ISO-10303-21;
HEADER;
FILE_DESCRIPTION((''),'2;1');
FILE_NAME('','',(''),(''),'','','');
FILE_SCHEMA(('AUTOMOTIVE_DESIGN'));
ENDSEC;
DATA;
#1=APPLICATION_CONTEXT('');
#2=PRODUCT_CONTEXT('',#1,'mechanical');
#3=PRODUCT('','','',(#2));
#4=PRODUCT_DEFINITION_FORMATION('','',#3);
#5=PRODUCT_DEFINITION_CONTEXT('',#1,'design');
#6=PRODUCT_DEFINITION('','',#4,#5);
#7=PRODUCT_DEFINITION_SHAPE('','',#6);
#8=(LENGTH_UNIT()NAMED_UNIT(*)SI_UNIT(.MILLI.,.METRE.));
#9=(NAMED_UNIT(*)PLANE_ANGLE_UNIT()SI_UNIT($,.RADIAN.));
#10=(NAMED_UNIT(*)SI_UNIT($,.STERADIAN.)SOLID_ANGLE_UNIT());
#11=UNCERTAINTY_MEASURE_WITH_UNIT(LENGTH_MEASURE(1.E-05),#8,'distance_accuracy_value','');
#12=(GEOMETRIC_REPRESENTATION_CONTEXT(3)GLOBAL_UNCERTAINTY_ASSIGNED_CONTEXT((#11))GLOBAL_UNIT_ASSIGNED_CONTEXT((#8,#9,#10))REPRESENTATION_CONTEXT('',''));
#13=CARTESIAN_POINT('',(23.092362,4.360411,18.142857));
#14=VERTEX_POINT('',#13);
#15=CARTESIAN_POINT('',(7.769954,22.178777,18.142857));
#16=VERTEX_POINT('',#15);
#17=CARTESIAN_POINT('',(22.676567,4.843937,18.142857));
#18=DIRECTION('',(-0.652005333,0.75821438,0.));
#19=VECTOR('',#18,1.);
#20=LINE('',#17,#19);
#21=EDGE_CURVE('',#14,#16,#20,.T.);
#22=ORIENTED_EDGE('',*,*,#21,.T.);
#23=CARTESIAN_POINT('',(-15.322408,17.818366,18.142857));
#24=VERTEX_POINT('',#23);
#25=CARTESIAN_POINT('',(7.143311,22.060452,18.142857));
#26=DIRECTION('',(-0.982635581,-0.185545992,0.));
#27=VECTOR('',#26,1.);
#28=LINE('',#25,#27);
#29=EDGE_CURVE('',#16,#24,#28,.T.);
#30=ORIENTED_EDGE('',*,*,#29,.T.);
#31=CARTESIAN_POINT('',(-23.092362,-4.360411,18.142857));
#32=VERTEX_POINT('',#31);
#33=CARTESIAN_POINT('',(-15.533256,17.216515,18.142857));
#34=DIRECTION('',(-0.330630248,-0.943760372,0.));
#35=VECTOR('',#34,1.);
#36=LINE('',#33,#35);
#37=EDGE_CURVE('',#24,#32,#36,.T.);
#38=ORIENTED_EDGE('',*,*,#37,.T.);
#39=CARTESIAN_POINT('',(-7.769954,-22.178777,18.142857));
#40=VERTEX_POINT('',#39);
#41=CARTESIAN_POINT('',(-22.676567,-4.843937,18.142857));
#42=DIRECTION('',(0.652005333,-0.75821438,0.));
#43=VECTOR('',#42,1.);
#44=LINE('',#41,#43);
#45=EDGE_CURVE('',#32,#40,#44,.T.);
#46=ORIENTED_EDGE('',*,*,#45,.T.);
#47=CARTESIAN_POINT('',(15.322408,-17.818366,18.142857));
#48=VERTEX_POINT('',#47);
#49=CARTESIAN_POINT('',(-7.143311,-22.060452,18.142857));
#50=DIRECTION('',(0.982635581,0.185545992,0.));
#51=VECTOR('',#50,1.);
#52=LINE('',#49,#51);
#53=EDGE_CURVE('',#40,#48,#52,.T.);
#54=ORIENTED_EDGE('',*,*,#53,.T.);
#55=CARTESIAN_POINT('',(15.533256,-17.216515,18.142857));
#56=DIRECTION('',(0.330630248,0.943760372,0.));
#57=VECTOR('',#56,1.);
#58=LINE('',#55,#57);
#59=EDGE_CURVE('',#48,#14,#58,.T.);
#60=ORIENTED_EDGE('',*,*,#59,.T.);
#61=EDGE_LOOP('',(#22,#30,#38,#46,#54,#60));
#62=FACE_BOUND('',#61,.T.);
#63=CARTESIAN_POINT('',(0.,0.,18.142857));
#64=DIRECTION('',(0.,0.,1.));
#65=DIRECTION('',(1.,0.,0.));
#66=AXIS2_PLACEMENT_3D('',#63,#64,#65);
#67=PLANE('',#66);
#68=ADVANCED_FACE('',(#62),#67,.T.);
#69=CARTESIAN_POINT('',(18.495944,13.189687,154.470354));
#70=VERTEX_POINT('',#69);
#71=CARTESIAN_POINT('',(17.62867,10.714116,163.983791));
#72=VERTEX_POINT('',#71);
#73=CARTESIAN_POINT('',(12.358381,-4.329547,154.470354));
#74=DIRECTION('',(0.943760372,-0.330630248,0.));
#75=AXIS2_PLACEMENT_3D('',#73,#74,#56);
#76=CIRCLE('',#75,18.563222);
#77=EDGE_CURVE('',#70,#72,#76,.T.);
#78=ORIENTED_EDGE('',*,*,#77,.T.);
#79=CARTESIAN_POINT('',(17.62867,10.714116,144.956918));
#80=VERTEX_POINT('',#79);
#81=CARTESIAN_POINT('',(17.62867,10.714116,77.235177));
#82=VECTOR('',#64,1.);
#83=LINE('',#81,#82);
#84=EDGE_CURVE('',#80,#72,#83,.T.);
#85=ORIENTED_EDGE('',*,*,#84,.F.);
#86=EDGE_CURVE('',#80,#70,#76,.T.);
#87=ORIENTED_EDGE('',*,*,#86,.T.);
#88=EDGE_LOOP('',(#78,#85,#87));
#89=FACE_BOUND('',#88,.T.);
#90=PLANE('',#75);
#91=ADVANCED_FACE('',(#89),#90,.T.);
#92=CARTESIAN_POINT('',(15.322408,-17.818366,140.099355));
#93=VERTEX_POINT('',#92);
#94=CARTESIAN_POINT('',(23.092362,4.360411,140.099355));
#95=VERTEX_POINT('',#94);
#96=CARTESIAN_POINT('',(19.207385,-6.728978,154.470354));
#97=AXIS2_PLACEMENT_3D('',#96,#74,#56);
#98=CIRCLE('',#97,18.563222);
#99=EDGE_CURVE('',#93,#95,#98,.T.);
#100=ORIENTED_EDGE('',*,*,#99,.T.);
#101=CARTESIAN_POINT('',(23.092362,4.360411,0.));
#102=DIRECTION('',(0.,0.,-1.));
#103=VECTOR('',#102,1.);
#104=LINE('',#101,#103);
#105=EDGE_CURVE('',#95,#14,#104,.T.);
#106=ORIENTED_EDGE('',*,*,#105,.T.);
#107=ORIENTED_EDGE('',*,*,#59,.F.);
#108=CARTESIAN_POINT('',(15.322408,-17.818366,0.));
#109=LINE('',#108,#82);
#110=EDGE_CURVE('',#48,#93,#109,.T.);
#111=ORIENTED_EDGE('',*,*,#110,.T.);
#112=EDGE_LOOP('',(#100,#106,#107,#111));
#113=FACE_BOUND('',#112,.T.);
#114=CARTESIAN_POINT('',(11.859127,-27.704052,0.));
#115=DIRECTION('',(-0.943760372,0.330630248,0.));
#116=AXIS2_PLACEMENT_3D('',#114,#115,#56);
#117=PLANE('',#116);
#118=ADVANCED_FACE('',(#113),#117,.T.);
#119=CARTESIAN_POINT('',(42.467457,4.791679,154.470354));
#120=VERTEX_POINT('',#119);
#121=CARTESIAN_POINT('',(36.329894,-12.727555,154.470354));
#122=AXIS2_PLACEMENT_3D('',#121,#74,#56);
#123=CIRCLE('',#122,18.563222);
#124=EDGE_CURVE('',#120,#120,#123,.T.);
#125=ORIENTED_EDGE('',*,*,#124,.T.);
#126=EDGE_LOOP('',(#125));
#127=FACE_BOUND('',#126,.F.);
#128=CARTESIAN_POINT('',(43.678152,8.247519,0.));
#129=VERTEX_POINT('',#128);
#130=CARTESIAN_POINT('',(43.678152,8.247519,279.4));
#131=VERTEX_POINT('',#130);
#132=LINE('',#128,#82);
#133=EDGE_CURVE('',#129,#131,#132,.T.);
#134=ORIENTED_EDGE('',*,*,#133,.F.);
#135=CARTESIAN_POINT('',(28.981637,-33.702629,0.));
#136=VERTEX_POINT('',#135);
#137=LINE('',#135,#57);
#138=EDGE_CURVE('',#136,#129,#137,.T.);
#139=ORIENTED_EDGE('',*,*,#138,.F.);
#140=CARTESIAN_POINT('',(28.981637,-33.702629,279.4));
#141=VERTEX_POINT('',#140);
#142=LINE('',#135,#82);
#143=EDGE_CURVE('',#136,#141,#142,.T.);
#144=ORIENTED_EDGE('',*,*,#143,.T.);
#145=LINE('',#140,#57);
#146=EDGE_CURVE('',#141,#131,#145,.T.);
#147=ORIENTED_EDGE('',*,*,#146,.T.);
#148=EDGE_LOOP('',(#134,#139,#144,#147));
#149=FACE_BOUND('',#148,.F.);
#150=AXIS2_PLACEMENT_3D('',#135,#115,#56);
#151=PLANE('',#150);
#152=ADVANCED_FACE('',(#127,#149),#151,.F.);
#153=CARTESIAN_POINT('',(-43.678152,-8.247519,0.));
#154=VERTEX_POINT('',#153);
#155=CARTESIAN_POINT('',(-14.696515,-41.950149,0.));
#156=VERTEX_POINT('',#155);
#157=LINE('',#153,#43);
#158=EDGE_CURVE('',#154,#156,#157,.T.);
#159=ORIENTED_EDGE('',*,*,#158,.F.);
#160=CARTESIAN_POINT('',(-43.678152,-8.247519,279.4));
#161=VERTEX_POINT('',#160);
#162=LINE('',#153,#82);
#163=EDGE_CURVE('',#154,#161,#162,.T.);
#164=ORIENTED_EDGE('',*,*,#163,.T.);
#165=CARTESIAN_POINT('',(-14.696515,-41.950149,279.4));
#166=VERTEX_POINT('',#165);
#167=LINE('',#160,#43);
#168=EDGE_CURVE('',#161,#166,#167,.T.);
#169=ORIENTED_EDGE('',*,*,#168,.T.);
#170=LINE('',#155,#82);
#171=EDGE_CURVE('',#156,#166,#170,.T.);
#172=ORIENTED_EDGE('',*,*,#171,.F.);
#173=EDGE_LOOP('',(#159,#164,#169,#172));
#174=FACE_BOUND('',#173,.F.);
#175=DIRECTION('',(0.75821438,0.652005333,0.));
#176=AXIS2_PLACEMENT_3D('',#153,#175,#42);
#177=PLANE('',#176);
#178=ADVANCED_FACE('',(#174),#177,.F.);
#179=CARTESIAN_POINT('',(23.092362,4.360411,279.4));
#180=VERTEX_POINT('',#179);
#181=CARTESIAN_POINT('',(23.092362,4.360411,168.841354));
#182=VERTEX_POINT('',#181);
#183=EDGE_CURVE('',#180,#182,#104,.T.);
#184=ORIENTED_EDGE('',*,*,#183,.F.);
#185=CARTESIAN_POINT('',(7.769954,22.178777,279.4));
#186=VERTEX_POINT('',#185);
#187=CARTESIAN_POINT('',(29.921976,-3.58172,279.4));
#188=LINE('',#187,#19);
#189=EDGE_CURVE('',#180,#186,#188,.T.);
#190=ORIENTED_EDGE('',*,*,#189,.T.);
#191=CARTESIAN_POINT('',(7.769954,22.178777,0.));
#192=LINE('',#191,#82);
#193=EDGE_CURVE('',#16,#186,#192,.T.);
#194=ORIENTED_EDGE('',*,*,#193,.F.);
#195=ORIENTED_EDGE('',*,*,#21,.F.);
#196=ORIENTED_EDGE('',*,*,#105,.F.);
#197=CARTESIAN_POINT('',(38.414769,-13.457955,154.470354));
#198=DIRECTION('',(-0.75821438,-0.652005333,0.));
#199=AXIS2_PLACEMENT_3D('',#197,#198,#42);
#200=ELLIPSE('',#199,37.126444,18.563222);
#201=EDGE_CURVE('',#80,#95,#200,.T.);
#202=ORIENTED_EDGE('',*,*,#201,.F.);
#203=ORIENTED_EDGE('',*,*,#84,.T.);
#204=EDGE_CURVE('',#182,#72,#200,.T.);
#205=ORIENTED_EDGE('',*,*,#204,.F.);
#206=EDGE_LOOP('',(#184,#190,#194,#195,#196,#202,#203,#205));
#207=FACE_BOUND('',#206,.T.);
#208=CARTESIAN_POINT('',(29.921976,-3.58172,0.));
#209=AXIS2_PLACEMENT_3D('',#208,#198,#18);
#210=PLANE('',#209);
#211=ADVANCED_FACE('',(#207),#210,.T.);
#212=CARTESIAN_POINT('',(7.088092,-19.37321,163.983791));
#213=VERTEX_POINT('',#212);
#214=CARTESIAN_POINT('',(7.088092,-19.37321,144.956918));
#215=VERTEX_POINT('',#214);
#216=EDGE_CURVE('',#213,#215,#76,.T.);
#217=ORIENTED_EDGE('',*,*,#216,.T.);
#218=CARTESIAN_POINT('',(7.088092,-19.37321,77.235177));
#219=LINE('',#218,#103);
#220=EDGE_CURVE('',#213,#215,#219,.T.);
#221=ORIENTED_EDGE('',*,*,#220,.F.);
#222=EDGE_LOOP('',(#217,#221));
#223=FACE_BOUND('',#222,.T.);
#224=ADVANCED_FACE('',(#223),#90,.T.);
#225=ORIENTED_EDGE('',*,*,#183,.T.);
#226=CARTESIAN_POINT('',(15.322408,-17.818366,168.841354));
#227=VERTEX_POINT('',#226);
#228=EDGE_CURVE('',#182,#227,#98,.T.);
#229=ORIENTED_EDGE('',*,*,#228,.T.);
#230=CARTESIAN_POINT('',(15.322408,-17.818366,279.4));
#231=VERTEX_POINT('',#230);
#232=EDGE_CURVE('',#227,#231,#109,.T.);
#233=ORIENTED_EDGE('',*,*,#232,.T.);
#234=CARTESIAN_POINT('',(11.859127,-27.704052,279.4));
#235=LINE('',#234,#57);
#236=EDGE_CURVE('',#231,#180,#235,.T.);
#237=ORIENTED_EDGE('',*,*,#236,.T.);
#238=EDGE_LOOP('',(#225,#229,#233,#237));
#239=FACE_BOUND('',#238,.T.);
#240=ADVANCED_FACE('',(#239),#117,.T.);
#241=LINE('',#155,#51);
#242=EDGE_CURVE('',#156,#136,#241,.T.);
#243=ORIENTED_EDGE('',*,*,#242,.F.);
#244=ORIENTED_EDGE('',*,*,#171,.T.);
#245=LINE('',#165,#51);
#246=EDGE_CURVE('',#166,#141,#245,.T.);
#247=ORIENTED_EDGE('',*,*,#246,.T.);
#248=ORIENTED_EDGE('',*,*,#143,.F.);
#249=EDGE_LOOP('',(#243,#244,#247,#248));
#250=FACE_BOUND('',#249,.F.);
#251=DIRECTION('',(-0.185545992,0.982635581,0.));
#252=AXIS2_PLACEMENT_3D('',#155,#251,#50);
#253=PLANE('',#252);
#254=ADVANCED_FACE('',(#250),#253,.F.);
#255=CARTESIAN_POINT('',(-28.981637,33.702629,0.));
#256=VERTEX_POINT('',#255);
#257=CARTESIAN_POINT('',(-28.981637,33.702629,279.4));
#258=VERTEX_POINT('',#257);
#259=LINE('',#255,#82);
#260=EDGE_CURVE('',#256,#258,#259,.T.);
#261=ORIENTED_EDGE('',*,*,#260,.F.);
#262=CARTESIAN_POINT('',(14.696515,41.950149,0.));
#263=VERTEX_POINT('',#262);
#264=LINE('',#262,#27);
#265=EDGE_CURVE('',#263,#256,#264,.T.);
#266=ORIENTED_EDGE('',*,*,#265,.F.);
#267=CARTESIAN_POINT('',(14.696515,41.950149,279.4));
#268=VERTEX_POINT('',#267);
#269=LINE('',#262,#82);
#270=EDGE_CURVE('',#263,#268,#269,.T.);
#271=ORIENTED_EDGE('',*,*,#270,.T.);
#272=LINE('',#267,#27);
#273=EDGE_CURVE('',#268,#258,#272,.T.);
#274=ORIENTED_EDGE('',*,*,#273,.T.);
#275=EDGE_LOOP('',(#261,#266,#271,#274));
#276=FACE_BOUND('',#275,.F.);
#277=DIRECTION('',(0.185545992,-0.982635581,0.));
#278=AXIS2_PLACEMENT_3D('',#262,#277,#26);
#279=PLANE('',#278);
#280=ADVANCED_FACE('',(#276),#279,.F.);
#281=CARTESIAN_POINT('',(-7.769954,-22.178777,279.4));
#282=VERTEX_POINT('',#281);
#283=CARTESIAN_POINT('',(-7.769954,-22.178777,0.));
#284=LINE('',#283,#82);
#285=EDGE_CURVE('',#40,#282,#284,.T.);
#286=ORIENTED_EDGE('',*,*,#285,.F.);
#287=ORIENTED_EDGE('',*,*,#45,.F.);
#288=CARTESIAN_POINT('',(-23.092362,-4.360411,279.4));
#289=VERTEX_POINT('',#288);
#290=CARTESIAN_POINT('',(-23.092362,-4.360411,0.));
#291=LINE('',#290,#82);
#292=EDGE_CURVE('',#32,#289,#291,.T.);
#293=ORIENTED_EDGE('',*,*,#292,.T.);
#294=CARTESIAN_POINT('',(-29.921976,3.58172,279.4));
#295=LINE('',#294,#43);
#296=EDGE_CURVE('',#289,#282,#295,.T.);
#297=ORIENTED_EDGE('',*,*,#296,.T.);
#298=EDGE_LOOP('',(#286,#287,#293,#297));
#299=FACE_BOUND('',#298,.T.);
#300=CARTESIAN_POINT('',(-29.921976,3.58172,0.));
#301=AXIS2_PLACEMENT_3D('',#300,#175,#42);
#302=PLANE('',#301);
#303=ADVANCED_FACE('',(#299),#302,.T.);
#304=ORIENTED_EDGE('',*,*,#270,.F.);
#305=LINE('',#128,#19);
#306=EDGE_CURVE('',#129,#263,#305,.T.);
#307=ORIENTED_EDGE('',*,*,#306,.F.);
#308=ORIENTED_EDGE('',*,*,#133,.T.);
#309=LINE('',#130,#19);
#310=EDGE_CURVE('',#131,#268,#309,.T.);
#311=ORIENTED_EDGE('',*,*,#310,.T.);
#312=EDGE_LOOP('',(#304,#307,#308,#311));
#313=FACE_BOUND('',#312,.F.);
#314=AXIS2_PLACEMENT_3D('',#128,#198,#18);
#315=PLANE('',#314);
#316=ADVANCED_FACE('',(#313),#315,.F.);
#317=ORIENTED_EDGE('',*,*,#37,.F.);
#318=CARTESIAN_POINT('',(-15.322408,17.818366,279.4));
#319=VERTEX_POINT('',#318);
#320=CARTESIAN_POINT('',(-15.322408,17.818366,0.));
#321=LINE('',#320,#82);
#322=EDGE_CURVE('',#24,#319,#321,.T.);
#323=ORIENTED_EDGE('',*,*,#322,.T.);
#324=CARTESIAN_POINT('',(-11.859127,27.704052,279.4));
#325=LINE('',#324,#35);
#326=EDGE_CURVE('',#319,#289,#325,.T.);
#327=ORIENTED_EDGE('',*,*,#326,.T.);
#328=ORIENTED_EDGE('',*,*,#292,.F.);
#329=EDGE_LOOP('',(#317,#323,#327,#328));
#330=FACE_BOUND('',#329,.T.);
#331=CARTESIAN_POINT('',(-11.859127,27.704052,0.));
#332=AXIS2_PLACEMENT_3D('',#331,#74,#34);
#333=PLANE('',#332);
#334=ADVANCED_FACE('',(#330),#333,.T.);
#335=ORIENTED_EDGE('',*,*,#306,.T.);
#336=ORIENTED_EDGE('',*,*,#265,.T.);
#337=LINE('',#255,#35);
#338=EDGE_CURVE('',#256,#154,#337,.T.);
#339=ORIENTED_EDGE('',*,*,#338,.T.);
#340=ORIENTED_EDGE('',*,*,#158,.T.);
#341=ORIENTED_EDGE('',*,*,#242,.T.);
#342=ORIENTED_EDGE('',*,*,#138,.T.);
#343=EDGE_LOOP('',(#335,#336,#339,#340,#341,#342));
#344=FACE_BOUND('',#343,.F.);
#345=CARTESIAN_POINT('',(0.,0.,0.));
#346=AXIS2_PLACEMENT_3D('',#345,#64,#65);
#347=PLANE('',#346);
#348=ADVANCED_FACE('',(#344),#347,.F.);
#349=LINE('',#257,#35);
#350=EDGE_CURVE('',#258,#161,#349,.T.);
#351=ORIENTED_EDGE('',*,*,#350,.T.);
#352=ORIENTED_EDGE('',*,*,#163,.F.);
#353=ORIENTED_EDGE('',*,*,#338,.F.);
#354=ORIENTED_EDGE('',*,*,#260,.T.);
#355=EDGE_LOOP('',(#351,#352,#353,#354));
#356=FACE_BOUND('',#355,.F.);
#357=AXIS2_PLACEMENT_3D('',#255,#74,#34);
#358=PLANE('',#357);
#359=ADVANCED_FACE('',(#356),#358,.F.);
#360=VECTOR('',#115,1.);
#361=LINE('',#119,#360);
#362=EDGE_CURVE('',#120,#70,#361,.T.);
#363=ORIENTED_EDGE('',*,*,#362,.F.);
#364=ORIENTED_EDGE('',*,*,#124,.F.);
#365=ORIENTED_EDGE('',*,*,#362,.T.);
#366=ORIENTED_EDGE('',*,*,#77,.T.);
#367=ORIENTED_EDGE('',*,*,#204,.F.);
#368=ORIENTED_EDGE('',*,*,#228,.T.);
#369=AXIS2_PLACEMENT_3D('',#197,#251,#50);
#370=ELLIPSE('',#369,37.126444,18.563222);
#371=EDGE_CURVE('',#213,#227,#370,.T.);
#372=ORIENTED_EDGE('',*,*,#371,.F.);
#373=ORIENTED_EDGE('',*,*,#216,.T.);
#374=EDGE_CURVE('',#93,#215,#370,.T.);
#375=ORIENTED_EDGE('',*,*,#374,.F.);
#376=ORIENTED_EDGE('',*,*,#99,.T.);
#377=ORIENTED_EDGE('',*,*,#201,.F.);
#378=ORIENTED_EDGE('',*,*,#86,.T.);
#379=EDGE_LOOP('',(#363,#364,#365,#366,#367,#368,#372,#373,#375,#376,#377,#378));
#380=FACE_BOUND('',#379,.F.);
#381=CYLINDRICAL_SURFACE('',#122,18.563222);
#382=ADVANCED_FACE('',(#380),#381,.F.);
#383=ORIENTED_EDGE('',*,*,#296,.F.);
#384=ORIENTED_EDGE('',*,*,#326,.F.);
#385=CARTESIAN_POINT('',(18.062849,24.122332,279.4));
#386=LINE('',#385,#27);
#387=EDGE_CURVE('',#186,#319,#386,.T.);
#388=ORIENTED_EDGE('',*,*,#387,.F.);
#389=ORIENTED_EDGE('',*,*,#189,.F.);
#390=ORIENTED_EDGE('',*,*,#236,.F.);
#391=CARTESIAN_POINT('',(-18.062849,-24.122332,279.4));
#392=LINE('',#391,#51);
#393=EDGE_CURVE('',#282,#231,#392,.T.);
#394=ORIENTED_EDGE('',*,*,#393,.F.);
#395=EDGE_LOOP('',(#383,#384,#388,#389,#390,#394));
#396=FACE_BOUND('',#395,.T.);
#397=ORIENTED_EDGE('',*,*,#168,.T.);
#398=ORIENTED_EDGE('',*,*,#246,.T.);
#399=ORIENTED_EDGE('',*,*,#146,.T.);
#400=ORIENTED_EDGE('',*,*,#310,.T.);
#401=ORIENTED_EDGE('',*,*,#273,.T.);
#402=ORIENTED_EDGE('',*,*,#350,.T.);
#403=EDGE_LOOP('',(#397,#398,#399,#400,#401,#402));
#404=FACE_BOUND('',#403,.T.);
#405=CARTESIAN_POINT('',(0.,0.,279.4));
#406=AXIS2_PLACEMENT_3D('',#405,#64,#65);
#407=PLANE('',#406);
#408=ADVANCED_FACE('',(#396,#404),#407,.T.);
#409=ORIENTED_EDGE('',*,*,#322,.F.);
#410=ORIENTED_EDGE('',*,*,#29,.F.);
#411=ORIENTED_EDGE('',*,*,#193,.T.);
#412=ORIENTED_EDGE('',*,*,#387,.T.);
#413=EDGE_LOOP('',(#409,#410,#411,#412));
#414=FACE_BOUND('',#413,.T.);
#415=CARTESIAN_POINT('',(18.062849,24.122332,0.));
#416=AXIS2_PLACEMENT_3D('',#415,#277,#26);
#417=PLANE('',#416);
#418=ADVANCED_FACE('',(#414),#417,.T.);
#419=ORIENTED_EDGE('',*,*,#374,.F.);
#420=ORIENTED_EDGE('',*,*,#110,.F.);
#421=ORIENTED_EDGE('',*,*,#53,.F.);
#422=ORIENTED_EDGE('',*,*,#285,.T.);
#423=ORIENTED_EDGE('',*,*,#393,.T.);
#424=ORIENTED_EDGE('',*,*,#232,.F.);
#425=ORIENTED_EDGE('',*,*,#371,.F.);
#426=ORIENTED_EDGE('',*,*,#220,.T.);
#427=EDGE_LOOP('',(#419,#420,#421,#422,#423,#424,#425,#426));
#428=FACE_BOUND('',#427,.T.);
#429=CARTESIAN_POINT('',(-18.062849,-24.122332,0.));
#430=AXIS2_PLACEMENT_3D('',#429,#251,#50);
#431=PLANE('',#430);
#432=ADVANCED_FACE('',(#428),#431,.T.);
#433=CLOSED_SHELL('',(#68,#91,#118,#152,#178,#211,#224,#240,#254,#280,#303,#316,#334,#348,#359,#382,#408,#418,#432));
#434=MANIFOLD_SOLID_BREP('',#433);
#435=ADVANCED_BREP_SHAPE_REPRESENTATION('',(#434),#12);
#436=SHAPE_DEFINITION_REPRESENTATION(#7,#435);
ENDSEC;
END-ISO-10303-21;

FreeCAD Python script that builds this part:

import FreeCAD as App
import Part
import Sketcher

V = App.Vector
Q = App.Units.Quantity


def faces_at(feature, points):
    """Names of the faces that lie closest to the given points."""
    faces = feature.Shape.Faces
    near = lambda p: min(range(len(faces)), key=lambda i: faces[i].distToShape(Part.Vertex(*p))[0])
    return sorted({f"Face{near(p) + 1}" for p in points})

doc = App.newDocument("Part")
params = doc.addObject("Spreadsheet::Sheet", "Params")
for row, (alias, value) in enumerate([
    ("sketch1_length", "1.75 in"),
    ("pad1_length", "11 in"),
    ("thickness_wall", "18.142857 mm"),
    ("pocket1_length", "1 in"),
], start=1):
    params.set(f"A{row}", alias)
    params.set(f"B{row}", "=" + value)
    params.setAlias(f"B{row}", alias)

body = doc.addObject("PartDesign::Body", "Body")

sketch1 = body.newObject("Sketcher::SketchObject", "Sketch")
sketch1.AttachmentSupport = (doc.getObject("XY_Plane"), [""])
sketch1.MapMode = "FlatFace"
sketch1.addGeometry([
    Part.LineSegment(V(43.678152, 8.247519, 0), V(14.696515, 41.950149, 0)),
    Part.LineSegment(V(14.696515, 41.950149, 0), V(-28.981637, 33.702629, 0)),
    Part.LineSegment(V(-28.981637, 33.702629, 0), V(-43.678152, -8.247519, 0)),
    Part.LineSegment(V(-43.678152, -8.247519, 0), V(-14.696515, -41.950149, 0)),
    Part.LineSegment(V(-14.696515, -41.950149, 0), V(28.981637, -33.702629, 0)),
    Part.LineSegment(V(28.981637, -33.702629, 0), V(43.678152, 8.247519, 0)),
], False)
sketch1.addConstraint([
    Sketcher.Constraint("Coincident", 0, 2, 1, 1),
    Sketcher.Constraint("Coincident", 1, 2, 2, 1),
    Sketcher.Constraint("Coincident", 2, 2, 3, 1),
    Sketcher.Constraint("Coincident", 3, 2, 4, 1),
    Sketcher.Constraint("Coincident", 4, 2, 5, 1),
    Sketcher.Constraint("Coincident", 5, 2, 0, 1),
    Sketcher.Constraint("Symmetric", 0, 2, 3, 2, -1, 1),
    Sketcher.Constraint("Symmetric", 1, 2, 4, 2, -1, 1),
    Sketcher.Constraint("Symmetric", 2, 2, 5, 2, -1, 1),
    Sketcher.Constraint("Equal", 0, 1),
    Sketcher.Constraint("Equal", 1, 2),
    Sketcher.Constraint("Distance", 0, Q("1.75 in")),
    Sketcher.Constraint("DistanceY", -1, 1, 0, 2, 41.950149),
    Sketcher.Constraint("DistanceY", -1, 1, 1, 2, 33.702629),
    Sketcher.Constraint("DistanceX", 2, 2, -1, 1, 43.678152),
])
sketch1.setExpression("Constraints[11]", "Params.sketch1_length")
pad1 = body.newObject("PartDesign::Pad", "Pad")
pad1.Profile = sketch1
pad1.setExpression("Length", "Params.pad1_length")
doc.recompute()

thickness = body.newObject("PartDesign::Thickness", "Thickness")
thickness.Base = (pad1, faces_at(pad1, [(0, 0, 279.4)]))
thickness.setExpression("Value", "Params.thickness_wall")
thickness.Reversed = True
thickness.Join = "Arc"

sketch2 = body.newObject("Sketcher::SketchObject", "Sketch001")
sketch2.Placement = App.Placement(V(36.329894, -12.727555, 0), App.Rotation(V(0.330630248, 0.943760372, 0), V(0, 0, 1.000000001), V(0.943760372, -0.330630248, 0), "ZXY"))
sketch2.addGeometry(Part.Circle(V(0, 154.470355, 0), V(0, 0, 1), 18.563222), False)
sketch2.addConstraint([
    Sketcher.Constraint("PointOnObject", 0, 3, -2),
    Sketcher.Constraint("Diameter", 0, 37.126444),
    Sketcher.Constraint("DistanceY", -1, 1, 0, 3, 154.470355),
])
pocket1 = body.newObject("PartDesign::Pocket", "Pocket")
pocket1.Profile = sketch2
pocket1.setExpression("Length", "Params.pocket1_length")

doc.recompute()
